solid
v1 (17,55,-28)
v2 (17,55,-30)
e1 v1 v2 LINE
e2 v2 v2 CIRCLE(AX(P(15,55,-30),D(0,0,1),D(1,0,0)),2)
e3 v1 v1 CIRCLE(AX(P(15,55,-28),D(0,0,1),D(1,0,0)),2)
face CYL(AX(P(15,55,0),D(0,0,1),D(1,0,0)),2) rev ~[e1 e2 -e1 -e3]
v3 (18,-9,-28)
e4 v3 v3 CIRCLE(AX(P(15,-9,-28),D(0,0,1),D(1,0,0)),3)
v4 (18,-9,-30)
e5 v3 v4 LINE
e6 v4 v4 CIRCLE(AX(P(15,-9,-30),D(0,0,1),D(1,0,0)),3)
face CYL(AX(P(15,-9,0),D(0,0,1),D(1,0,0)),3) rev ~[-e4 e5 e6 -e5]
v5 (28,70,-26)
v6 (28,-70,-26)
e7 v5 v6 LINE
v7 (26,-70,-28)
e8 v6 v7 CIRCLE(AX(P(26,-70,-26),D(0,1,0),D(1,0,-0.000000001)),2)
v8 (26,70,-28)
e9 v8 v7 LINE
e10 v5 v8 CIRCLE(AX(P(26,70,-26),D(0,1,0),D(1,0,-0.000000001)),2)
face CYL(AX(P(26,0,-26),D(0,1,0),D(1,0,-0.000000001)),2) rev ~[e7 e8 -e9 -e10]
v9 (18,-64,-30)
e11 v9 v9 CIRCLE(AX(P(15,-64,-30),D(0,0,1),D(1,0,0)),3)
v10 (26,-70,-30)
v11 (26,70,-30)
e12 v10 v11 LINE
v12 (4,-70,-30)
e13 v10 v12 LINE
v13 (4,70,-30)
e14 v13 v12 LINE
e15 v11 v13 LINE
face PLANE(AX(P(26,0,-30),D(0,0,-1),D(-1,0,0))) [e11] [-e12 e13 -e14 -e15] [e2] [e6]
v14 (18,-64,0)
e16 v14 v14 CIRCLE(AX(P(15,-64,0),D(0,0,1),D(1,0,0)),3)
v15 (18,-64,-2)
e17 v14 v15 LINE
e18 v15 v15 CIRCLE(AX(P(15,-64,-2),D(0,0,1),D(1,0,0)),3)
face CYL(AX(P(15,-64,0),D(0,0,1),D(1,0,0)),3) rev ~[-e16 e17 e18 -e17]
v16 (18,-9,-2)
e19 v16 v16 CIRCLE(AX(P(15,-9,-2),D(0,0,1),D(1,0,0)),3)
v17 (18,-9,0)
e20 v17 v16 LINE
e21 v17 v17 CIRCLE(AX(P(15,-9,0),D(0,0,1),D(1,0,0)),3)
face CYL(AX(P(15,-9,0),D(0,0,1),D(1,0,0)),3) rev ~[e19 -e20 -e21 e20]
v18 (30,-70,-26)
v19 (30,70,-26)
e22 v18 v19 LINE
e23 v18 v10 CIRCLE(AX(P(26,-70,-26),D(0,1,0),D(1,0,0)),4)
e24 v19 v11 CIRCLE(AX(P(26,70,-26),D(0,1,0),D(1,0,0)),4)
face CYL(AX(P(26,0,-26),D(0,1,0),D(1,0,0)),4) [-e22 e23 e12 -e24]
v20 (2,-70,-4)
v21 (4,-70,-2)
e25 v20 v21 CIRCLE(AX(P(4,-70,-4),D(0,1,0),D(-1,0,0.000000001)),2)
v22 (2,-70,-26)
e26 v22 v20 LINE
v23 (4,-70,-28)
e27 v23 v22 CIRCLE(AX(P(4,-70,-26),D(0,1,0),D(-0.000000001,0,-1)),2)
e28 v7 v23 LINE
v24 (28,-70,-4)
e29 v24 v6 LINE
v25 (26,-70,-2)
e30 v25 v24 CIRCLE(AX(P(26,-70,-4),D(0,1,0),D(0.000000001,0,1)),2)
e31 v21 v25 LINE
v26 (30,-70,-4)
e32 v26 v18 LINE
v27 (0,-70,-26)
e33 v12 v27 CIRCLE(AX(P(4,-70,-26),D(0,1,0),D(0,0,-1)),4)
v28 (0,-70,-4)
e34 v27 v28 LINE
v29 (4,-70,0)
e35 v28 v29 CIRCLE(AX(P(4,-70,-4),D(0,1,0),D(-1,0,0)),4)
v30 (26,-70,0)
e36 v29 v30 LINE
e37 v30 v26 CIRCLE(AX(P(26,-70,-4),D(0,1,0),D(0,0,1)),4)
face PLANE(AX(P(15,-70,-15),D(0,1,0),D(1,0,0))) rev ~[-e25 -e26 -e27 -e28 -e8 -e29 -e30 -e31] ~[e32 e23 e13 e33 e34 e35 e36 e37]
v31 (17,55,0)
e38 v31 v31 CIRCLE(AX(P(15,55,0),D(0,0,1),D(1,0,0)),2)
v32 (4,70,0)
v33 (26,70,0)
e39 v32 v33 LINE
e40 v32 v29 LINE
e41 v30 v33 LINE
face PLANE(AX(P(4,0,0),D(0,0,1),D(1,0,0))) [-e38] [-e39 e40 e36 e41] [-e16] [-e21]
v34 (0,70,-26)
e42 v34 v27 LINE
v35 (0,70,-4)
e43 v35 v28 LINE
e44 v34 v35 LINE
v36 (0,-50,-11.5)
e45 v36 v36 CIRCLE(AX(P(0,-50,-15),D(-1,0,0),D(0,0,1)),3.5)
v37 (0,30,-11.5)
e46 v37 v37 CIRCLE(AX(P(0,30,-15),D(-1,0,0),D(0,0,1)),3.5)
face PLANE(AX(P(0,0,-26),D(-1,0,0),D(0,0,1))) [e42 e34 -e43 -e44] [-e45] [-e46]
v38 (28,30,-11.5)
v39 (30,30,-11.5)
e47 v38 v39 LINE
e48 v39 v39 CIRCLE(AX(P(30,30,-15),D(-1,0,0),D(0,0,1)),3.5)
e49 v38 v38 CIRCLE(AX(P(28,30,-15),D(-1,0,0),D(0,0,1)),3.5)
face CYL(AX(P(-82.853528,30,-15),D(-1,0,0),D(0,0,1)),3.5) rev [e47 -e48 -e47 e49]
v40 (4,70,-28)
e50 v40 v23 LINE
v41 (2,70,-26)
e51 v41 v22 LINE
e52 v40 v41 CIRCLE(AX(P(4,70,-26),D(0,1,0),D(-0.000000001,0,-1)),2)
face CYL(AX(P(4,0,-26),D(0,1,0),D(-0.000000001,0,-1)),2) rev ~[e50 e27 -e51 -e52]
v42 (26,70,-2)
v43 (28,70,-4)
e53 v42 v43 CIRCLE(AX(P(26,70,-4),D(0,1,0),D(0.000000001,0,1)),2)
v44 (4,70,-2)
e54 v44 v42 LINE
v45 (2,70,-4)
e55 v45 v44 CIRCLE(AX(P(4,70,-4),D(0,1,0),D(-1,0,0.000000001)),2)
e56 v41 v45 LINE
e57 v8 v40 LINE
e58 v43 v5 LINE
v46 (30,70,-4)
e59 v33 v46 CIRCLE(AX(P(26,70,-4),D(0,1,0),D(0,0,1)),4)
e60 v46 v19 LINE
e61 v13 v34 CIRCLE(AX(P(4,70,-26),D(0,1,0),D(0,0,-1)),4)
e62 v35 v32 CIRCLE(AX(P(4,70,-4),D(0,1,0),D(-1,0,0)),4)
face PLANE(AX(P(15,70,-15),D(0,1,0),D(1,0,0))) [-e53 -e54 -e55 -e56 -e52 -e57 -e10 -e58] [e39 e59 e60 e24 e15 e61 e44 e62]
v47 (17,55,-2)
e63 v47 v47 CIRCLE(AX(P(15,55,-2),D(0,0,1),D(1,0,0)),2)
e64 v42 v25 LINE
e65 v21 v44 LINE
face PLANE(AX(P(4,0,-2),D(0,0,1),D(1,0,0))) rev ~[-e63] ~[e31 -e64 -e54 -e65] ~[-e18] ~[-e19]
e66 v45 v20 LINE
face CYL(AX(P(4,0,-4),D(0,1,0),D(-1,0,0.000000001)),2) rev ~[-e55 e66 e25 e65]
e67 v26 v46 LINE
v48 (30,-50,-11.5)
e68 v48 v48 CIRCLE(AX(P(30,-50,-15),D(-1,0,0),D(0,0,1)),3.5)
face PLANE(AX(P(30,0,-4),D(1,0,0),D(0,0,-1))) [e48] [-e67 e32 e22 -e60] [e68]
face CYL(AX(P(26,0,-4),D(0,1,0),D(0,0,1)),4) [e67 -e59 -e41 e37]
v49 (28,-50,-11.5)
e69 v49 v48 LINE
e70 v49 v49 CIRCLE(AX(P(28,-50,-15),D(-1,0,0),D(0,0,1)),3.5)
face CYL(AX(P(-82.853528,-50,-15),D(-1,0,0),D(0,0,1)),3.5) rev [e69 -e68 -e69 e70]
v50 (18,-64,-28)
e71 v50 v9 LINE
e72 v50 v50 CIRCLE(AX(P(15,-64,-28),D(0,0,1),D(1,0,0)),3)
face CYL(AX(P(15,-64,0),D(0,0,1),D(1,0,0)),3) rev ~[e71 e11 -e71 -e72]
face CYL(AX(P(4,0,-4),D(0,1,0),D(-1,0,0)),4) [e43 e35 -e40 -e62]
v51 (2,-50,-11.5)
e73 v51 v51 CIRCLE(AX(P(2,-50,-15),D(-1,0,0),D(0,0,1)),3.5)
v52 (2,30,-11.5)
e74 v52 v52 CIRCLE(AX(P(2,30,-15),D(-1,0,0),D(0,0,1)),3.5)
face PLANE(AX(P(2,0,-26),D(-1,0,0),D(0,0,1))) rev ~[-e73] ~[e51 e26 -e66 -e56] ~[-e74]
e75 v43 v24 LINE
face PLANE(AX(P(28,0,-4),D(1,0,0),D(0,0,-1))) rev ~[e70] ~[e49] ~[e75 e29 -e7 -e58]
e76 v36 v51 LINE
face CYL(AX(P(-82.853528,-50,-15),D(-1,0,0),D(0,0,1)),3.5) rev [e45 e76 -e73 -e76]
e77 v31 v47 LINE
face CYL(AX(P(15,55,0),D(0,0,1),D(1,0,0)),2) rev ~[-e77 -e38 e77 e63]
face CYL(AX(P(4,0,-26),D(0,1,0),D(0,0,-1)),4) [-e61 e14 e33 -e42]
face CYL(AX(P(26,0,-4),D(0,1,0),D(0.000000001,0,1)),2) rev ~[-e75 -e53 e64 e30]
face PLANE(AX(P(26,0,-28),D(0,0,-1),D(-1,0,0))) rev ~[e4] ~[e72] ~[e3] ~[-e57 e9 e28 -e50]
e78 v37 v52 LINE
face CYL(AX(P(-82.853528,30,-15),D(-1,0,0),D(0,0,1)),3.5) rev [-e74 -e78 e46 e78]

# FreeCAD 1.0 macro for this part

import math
import FreeCAD as App
import Part
import Sketcher

V = App.Vector
Q = App.Units.Quantity

doc = App.newDocument("Part")
body = doc.addObject("PartDesign::Body", "Body")

# Sketch on XZ plane
sketch1 = body.newObject("Sketcher::SketchObject", "Sketch")
sketch1.AttachmentSupport = (doc.getObject("XZ_Plane"), [""])
sketch1.MapMode = "FlatFace"
sketch1.addGeometry([
    Part.LineSegment(V(4, 0, 0), V(26, 0, 0)),  # 0
    Part.ArcOfCircle(Part.Circle(V(26, -4, 0), V(0, 0, 1), 4), math.radians(0), math.radians(90)),  # 1
    Part.LineSegment(V(30, -4, 0), V(30, -26, 0)),  # 2
    Part.ArcOfCircle(Part.Circle(V(26, -26, 0), V(0, 0, 1), 4), math.radians(-90), math.radians(0)),  # 3
    Part.LineSegment(V(26, -30, 0), V(4, -30, 0)),  # 4
    Part.ArcOfCircle(Part.Circle(V(4, -26, 0), V(0, 0, 1), 4), math.radians(180), math.radians(270)),  # 5
    Part.LineSegment(V(0, -26, 0), V(0, -4, 0)),  # 6
    Part.ArcOfCircle(Part.Circle(V(4, -4, 0), V(0, 0, 1), 4), math.radians(90), math.radians(180)),  # 7
    Part.LineSegment(V(26, -2, 0), V(4, -2, 0)),  # 8
    Part.ArcOfCircle(Part.Circle(V(4, -4, 0), V(0, 0, 1), 2), math.radians(90), math.radians(180)),  # 9
    Part.LineSegment(V(2, -4, 0), V(2, -26, 0)),  # 10
    Part.ArcOfCircle(Part.Circle(V(4, -26, 0), V(0, 0, 1), 2), math.radians(-180), math.radians(-90)),  # 11
    Part.LineSegment(V(4, -28, 0), V(26, -28, 0)),  # 12
    Part.ArcOfCircle(Part.Circle(V(26, -26, 0), V(0, 0, 1), 2), math.radians(-90), math.radians(0)),  # 13
    Part.LineSegment(V(28, -26, 0), V(28, -4, 0)),  # 14
    Part.ArcOfCircle(Part.Circle(V(26, -4, 0), V(0, 0, 1), 2), math.radians(0), math.radians(90)),  # 15
], False)
sketch1.addConstraint([
    Sketcher.Constraint("Tangent", 0, 2, 1, 2),
    Sketcher.Constraint("Tangent", 1, 1, 2, 1),
    Sketcher.Constraint("Tangent", 2, 2, 3, 2),
    Sketcher.Constraint("Tangent", 3, 1, 4, 1),
    Sketcher.Constraint("Tangent", 4, 2, 5, 2),
    Sketcher.Constraint("Tangent", 5, 1, 6, 1),
    Sketcher.Constraint("Tangent", 6, 2, 7, 2),
    Sketcher.Constraint("Tangent", 7, 1, 0, 1),
    Sketcher.Constraint("Tangent", 8, 2, 9, 1),
    Sketcher.Constraint("Tangent", 9, 2, 10, 1),
    Sketcher.Constraint("Tangent", 10, 2, 11, 1),
    Sketcher.Constraint("Tangent", 11, 2, 12, 1),
    Sketcher.Constraint("Tangent", 12, 2, 13, 1),
    Sketcher.Constraint("Tangent", 13, 2, 14, 1),
    Sketcher.Constraint("Tangent", 14, 2, 15, 1),
    Sketcher.Constraint("Tangent", 15, 2, 8, 1),
    Sketcher.Constraint("Horizontal", 0),
    Sketcher.Constraint("Vertical", 2),
    Sketcher.Constraint("Horizontal", 4),
    Sketcher.Constraint("Vertical", 6),
    Sketcher.Constraint("Horizontal", 8),
    Sketcher.Constraint("Vertical", 10),
    Sketcher.Constraint("Horizontal", 12),
    Sketcher.Constraint("Vertical", 14),
    Sketcher.Constraint("Coincident", 9, 3, 7, 3),
    Sketcher.Constraint("Coincident", 11, 3, 5, 3),
    Sketcher.Constraint("Coincident", 13, 3, 3, 3),
    Sketcher.Constraint("Equal", 1, 3),
    Sketcher.Constraint("Equal", 3, 5),
    Sketcher.Constraint("Equal", 5, 7),
    Sketcher.Constraint("Equal", 13, 15),
    Sketcher.Constraint("PointOnObject", 0, 2, -1),
    Sketcher.Constraint("PointOnObject", 5, 1, -2),
    Sketcher.Constraint("Equal", 12, 2),
    Sketcher.Constraint("Radius", 1, Q("4 mm")),
    Sketcher.Constraint("Radius", 9, Q("2 mm")),
    Sketcher.Constraint("DistanceX", 0, 1, 0, 2, Q("22 mm")),
])
pad1 = body.newObject("PartDesign::Pad", "Pad")
pad1.Profile = sketch1
pad1.Length = 140
pad1.Midplane = True

# Sketch on XY plane
sketch2 = body.newObject("Sketcher::SketchObject", "Sketch001")
sketch2.AttachmentSupport = (doc.getObject("XY_Plane"), [""])
sketch2.MapMode = "FlatFace"
sketch2.addGeometry([
    Part.Circle(V(15, -64, 0), V(0, 0, 1), 3),
    Part.Circle(V(15, -9, 0), V(0, 0, 1), 3),
    Part.Circle(V(15, 55, 0), V(0, 0, 1), 2),
], False)
sketch2.addConstraint([
    Sketcher.Constraint("Equal", 0, 1),
    Sketcher.Constraint("Vertical", 0, 3, 1, 3),
    Sketcher.Constraint("Vertical", 1, 3, 2, 3),
    Sketcher.Constraint("Diameter", 0, Q("6 mm")),
    Sketcher.Constraint("Diameter", 2, Q("4 mm")),
    Sketcher.Constraint("DistanceX", -1, 1, 0, 3, Q("15 mm")),
    Sketcher.Constraint("DistanceY", 0, 3, -1, 1, Q("64 mm")),
    Sketcher.Constraint("DistanceY", 1, 3, -1, 1, Q("9 mm")),
    Sketcher.Constraint("DistanceY", -1, 1, 2, 3, Q("55 mm")),
])
pocket1 = body.newObject("PartDesign::Pocket", "Pocket")
pocket1.Profile = sketch2
pocket1.Type = "ThroughAll"

# Sketch on YZ plane
sketch3 = body.newObject("Sketcher::SketchObject", "Sketch002")
sketch3.AttachmentSupport = (doc.getObject("YZ_Plane"), [""])
sketch3.MapMode = "FlatFace"
sketch3.addGeometry([
    Part.Circle(V(-50, -15, 0), V(0, 0, 1), 3.5),
    Part.Circle(V(30, -15, 0), V(0, 0, 1), 3.5),
], False)
sketch3.addConstraint([
    Sketcher.Constraint("Equal", 0, 1),
    Sketcher.Constraint("Horizontal", 0, 3, 1, 3),
    Sketcher.Constraint("Diameter", 0, Q("7 mm")),
    Sketcher.Constraint("DistanceX", 0, 3, -1, 1, Q("50 mm")),
    Sketcher.Constraint("DistanceY", 0, 3, -1, 1, Q("15 mm")),
    Sketcher.Constraint("DistanceX", -1, 1, 1, 3, Q("30 mm")),
])
pocket2 = body.newObject("PartDesign::Pocket", "Pocket001")
pocket2.Profile = sketch3
pocket2.Type = "ThroughAll"
pocket2.Midplane = True

doc.recompute()
